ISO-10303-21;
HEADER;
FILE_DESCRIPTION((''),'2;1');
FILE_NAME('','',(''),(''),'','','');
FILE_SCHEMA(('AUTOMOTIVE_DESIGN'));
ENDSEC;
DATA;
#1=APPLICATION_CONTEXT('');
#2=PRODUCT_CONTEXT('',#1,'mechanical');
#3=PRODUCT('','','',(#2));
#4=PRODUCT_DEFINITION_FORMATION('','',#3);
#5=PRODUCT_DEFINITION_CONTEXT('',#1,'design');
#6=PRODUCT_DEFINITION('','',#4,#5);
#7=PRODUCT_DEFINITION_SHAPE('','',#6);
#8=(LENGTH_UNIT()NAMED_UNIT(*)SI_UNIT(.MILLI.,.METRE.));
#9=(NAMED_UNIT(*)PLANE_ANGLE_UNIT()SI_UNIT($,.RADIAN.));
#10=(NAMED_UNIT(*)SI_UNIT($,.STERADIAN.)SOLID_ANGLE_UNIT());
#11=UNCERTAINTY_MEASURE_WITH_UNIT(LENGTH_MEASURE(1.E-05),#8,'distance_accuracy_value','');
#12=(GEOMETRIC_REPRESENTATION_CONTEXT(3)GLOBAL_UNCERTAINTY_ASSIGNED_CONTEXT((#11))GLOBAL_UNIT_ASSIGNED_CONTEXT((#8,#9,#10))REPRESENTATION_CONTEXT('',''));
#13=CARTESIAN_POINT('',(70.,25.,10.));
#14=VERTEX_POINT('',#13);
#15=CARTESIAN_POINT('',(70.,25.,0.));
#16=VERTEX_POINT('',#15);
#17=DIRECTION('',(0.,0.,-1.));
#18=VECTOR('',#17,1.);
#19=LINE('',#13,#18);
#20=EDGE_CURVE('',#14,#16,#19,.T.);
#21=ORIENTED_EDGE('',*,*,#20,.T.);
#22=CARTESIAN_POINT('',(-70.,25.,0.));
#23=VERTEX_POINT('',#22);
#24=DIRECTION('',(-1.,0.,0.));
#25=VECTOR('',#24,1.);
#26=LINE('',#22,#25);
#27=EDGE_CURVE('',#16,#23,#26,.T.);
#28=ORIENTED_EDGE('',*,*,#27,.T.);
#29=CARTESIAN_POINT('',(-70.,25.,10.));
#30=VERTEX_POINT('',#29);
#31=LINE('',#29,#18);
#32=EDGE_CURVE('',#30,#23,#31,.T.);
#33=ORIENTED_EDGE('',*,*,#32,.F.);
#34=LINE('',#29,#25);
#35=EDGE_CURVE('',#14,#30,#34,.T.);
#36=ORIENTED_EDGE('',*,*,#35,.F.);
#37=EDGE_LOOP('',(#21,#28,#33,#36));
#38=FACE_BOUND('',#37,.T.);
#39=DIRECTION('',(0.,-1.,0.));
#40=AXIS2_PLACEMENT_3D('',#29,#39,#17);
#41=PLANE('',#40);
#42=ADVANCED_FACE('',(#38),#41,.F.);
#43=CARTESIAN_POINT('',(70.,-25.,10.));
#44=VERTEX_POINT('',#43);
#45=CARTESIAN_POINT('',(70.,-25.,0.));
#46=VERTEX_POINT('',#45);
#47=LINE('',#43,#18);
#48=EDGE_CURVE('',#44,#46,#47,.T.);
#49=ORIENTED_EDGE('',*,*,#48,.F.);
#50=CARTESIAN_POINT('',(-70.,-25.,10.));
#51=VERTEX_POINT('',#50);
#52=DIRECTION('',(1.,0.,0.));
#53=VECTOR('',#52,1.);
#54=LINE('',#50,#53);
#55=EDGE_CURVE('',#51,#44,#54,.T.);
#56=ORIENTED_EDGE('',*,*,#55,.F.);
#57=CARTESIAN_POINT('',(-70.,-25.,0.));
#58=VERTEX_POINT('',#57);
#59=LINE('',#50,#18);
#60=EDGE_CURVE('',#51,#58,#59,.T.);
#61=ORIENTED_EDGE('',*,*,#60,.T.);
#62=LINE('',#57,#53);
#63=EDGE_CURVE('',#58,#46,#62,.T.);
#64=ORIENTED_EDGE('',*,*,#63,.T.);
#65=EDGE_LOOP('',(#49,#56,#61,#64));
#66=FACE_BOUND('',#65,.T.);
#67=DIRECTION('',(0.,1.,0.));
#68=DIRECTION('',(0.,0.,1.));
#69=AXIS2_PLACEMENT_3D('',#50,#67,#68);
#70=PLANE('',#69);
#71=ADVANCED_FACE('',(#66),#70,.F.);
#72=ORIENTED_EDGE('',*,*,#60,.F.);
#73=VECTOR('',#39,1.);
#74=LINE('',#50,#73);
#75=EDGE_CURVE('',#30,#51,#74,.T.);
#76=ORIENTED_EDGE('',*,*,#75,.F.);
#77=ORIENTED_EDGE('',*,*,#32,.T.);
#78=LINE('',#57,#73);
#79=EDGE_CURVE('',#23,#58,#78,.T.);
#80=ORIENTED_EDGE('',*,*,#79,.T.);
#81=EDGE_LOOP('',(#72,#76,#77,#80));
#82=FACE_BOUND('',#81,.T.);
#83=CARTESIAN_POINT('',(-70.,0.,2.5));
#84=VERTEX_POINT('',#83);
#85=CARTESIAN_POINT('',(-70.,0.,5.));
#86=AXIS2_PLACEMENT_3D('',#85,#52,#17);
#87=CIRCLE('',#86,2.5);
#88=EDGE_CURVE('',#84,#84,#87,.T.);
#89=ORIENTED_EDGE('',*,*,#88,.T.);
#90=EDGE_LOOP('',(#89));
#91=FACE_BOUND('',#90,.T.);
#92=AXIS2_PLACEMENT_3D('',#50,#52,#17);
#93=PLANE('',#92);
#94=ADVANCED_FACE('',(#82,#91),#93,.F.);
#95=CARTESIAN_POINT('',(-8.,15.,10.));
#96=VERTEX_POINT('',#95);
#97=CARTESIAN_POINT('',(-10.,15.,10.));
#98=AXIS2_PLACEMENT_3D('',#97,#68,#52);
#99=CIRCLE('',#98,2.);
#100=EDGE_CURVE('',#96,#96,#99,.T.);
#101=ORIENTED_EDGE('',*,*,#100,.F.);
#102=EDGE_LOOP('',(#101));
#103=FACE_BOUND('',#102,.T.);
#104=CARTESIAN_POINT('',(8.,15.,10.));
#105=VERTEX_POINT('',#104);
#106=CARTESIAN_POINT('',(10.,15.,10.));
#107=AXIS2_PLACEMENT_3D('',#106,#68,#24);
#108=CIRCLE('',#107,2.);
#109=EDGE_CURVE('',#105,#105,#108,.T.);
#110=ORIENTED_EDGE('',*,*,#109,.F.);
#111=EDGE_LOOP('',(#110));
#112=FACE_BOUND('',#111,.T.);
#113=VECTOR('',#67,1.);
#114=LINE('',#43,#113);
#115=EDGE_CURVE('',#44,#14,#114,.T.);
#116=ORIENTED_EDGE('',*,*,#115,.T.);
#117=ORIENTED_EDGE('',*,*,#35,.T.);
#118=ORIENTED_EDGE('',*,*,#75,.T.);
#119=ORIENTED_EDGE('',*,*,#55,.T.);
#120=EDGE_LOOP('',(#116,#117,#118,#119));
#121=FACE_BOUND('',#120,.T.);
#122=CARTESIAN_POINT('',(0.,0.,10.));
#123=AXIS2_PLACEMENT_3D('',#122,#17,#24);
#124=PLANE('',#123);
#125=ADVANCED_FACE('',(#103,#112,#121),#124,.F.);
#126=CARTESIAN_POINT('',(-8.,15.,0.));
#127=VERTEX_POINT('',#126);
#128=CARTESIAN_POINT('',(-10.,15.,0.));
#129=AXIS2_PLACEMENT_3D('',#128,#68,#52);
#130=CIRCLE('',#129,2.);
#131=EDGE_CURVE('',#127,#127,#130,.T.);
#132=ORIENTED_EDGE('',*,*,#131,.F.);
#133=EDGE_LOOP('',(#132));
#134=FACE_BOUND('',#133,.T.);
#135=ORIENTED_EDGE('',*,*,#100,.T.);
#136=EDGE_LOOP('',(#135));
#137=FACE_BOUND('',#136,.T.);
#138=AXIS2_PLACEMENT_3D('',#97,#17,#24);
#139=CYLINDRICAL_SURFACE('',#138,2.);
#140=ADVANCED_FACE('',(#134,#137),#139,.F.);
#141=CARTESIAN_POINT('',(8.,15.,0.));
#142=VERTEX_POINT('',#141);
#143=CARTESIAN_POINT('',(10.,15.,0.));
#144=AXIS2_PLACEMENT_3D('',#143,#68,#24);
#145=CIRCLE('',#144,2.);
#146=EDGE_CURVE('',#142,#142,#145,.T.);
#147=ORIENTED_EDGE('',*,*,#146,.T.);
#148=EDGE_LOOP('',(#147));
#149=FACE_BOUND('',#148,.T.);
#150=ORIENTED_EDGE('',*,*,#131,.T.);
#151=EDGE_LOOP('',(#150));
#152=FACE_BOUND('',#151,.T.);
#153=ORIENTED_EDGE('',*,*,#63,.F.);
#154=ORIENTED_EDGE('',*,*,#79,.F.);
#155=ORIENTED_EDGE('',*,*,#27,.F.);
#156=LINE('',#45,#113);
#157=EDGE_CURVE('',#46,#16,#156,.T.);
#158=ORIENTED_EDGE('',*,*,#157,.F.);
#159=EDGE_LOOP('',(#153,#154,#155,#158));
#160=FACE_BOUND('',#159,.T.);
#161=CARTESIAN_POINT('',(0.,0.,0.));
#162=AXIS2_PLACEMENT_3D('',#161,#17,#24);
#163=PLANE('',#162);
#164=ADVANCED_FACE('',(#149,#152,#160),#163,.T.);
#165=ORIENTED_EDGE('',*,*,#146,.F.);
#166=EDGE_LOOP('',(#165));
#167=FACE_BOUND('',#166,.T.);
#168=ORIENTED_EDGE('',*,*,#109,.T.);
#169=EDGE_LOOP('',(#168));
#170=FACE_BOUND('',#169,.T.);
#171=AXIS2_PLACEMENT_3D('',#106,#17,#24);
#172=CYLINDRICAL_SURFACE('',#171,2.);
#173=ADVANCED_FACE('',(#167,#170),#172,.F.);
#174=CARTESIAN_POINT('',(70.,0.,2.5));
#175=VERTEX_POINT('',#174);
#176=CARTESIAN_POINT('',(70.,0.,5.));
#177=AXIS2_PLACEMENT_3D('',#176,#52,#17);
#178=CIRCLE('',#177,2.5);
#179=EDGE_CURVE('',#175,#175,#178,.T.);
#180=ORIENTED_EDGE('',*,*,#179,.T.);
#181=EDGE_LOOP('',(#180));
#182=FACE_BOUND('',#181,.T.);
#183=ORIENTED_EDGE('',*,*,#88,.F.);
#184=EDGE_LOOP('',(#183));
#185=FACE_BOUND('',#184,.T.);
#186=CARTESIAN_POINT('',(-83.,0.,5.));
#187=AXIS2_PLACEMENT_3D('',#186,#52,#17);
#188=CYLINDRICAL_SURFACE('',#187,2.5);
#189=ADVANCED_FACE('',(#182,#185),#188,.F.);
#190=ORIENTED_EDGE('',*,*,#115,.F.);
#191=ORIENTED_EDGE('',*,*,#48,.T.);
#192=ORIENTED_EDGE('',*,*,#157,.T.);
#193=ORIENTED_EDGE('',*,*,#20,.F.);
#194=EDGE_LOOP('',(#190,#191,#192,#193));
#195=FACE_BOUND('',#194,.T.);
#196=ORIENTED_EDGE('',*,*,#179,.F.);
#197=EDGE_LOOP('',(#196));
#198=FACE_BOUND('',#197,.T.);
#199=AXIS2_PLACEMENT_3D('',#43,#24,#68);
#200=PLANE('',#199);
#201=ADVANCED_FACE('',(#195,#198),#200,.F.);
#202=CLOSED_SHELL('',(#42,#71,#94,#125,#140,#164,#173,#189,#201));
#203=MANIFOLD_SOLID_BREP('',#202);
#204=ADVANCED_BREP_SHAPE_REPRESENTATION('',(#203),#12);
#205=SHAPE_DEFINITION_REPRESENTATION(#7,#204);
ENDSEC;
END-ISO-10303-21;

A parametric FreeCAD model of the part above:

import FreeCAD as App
import Part
import Sketcher

V = App.Vector
Q = App.Units.Quantity

doc = App.newDocument("Part")
params = doc.addObject("Spreadsheet::Sheet", "Params")
for row, (alias, value) in enumerate([
    ("sketch1_diameter", "4 mm"),
    ("sketch1_width", "140 mm"),
    ("sketch1_height", "50 mm"),
    ("pad1_length", "10 mm"),
    ("sketch2_diameter", "5 mm"),
    ("pocket1_length", "153 mm"),
], start=1):
    params.set(f"A{row}", alias)
    params.set(f"B{row}", "=" + value)
    params.setAlias(f"B{row}", alias)

body = doc.addObject("PartDesign::Body", "Body")

sketch1 = body.newObject("Sketcher::SketchObject", "Sketch")
sketch1.AttachmentSupport = (doc.getObject("XY_Plane"), [""])
sketch1.MapMode = "FlatFace"
sketch1.addGeometry(Part.LineSegment(V(-70, 25, 0), V(-70, -25, 0)), False)
sketch1.addGeometry(Part.LineSegment(V(-70, -25, 0), V(70, -25, 0)), False)
sketch1.addGeometry(Part.LineSegment(V(70, -25, 0), V(70, 25, 0)), False)
sketch1.addGeometry(Part.LineSegment(V(70, 25, 0), V(-70, 25, 0)), False)
sketch1.addGeometry(Part.Circle(V(-10, 15, 0), V(0, 0, 1), 2), False)
sketch1.addGeometry(Part.Circle(V(10, 15, 0), V(0, 0, 1), 2), False)
sketch1.addConstraint(Sketcher.Constraint("Coincident", 0, 2, 1, 1))
sketch1.addConstraint(Sketcher.Constraint("Coincident", 1, 2, 2, 1))
sketch1.addConstraint(Sketcher.Constraint("Coincident", 2, 2, 3, 1))
sketch1.addConstraint(Sketcher.Constraint("Coincident", 3, 2, 0, 1))
sketch1.addConstraint(Sketcher.Constraint("Vertical", 0))
sketch1.addConstraint(Sketcher.Constraint("Horizontal", 1))
sketch1.addConstraint(Sketcher.Constraint("Vertical", 2))
sketch1.addConstraint(Sketcher.Constraint("Horizontal", 3))
sketch1.addConstraint(Sketcher.Constraint("Equal", 4, 5))
sketch1.addConstraint(Sketcher.Constraint("Symmetric", 0, 2, 2, 2, -1, 1))
sketch1.addConstraint(Sketcher.Constraint("Symmetric", 4, 3, 5, 3, -2))
sketch1.addConstraint(Sketcher.Constraint("Diameter", 4, Q("4 mm")))
sketch1.addConstraint(Sketcher.Constraint("DistanceX", 1, 1, 1, 2, Q("140 mm")))
sketch1.addConstraint(Sketcher.Constraint("DistanceY", 0, 2, 0, 1, Q("50 mm")))
sketch1.addConstraint(Sketcher.Constraint("DistanceX", 4, 3, -1, 1, Q("10 mm")))
sketch1.addConstraint(Sketcher.Constraint("DistanceY", -1, 1, 4, 3, Q("15 mm")))
sketch1.setExpression("Constraints[11]", "Params.sketch1_diameter")
sketch1.setExpression("Constraints[12]", "Params.sketch1_width")
sketch1.setExpression("Constraints[13]", "Params.sketch1_height")
pad1 = body.newObject("PartDesign::Pad", "Pad")
pad1.Profile = sketch1
pad1.setExpression("Length", "Params.pad1_length")

sketch2 = body.newObject("Sketcher::SketchObject", "Sketch001")
sketch2.AttachmentSupport = (doc.getObject("YZ_Plane"), [""])
sketch2.MapMode = "FlatFace"
sketch2.AttachmentOffset = App.Placement(V(0, 0, 70), App.Rotation())
sketch2.addGeometry(Part.Circle(V(0, 5, 0), V(0, 0, 1), 2.5), False)
sketch2.addConstraint(Sketcher.Constraint("PointOnObject", 0, 3, -2))
sketch2.addConstraint(Sketcher.Constraint("Diameter", 0, Q("5 mm")))
sketch2.addConstraint(Sketcher.Constraint("DistanceY", -1, 1, 0, 3, Q("5 mm")))
sketch2.setExpression("Constraints[1]", "Params.sketch2_diameter")
pocket1 = body.newObject("PartDesign::Pocket", "Pocket")
pocket1.Profile = sketch2
pocket1.setExpression("Length", "Params.pocket1_length")

doc.recompute()
